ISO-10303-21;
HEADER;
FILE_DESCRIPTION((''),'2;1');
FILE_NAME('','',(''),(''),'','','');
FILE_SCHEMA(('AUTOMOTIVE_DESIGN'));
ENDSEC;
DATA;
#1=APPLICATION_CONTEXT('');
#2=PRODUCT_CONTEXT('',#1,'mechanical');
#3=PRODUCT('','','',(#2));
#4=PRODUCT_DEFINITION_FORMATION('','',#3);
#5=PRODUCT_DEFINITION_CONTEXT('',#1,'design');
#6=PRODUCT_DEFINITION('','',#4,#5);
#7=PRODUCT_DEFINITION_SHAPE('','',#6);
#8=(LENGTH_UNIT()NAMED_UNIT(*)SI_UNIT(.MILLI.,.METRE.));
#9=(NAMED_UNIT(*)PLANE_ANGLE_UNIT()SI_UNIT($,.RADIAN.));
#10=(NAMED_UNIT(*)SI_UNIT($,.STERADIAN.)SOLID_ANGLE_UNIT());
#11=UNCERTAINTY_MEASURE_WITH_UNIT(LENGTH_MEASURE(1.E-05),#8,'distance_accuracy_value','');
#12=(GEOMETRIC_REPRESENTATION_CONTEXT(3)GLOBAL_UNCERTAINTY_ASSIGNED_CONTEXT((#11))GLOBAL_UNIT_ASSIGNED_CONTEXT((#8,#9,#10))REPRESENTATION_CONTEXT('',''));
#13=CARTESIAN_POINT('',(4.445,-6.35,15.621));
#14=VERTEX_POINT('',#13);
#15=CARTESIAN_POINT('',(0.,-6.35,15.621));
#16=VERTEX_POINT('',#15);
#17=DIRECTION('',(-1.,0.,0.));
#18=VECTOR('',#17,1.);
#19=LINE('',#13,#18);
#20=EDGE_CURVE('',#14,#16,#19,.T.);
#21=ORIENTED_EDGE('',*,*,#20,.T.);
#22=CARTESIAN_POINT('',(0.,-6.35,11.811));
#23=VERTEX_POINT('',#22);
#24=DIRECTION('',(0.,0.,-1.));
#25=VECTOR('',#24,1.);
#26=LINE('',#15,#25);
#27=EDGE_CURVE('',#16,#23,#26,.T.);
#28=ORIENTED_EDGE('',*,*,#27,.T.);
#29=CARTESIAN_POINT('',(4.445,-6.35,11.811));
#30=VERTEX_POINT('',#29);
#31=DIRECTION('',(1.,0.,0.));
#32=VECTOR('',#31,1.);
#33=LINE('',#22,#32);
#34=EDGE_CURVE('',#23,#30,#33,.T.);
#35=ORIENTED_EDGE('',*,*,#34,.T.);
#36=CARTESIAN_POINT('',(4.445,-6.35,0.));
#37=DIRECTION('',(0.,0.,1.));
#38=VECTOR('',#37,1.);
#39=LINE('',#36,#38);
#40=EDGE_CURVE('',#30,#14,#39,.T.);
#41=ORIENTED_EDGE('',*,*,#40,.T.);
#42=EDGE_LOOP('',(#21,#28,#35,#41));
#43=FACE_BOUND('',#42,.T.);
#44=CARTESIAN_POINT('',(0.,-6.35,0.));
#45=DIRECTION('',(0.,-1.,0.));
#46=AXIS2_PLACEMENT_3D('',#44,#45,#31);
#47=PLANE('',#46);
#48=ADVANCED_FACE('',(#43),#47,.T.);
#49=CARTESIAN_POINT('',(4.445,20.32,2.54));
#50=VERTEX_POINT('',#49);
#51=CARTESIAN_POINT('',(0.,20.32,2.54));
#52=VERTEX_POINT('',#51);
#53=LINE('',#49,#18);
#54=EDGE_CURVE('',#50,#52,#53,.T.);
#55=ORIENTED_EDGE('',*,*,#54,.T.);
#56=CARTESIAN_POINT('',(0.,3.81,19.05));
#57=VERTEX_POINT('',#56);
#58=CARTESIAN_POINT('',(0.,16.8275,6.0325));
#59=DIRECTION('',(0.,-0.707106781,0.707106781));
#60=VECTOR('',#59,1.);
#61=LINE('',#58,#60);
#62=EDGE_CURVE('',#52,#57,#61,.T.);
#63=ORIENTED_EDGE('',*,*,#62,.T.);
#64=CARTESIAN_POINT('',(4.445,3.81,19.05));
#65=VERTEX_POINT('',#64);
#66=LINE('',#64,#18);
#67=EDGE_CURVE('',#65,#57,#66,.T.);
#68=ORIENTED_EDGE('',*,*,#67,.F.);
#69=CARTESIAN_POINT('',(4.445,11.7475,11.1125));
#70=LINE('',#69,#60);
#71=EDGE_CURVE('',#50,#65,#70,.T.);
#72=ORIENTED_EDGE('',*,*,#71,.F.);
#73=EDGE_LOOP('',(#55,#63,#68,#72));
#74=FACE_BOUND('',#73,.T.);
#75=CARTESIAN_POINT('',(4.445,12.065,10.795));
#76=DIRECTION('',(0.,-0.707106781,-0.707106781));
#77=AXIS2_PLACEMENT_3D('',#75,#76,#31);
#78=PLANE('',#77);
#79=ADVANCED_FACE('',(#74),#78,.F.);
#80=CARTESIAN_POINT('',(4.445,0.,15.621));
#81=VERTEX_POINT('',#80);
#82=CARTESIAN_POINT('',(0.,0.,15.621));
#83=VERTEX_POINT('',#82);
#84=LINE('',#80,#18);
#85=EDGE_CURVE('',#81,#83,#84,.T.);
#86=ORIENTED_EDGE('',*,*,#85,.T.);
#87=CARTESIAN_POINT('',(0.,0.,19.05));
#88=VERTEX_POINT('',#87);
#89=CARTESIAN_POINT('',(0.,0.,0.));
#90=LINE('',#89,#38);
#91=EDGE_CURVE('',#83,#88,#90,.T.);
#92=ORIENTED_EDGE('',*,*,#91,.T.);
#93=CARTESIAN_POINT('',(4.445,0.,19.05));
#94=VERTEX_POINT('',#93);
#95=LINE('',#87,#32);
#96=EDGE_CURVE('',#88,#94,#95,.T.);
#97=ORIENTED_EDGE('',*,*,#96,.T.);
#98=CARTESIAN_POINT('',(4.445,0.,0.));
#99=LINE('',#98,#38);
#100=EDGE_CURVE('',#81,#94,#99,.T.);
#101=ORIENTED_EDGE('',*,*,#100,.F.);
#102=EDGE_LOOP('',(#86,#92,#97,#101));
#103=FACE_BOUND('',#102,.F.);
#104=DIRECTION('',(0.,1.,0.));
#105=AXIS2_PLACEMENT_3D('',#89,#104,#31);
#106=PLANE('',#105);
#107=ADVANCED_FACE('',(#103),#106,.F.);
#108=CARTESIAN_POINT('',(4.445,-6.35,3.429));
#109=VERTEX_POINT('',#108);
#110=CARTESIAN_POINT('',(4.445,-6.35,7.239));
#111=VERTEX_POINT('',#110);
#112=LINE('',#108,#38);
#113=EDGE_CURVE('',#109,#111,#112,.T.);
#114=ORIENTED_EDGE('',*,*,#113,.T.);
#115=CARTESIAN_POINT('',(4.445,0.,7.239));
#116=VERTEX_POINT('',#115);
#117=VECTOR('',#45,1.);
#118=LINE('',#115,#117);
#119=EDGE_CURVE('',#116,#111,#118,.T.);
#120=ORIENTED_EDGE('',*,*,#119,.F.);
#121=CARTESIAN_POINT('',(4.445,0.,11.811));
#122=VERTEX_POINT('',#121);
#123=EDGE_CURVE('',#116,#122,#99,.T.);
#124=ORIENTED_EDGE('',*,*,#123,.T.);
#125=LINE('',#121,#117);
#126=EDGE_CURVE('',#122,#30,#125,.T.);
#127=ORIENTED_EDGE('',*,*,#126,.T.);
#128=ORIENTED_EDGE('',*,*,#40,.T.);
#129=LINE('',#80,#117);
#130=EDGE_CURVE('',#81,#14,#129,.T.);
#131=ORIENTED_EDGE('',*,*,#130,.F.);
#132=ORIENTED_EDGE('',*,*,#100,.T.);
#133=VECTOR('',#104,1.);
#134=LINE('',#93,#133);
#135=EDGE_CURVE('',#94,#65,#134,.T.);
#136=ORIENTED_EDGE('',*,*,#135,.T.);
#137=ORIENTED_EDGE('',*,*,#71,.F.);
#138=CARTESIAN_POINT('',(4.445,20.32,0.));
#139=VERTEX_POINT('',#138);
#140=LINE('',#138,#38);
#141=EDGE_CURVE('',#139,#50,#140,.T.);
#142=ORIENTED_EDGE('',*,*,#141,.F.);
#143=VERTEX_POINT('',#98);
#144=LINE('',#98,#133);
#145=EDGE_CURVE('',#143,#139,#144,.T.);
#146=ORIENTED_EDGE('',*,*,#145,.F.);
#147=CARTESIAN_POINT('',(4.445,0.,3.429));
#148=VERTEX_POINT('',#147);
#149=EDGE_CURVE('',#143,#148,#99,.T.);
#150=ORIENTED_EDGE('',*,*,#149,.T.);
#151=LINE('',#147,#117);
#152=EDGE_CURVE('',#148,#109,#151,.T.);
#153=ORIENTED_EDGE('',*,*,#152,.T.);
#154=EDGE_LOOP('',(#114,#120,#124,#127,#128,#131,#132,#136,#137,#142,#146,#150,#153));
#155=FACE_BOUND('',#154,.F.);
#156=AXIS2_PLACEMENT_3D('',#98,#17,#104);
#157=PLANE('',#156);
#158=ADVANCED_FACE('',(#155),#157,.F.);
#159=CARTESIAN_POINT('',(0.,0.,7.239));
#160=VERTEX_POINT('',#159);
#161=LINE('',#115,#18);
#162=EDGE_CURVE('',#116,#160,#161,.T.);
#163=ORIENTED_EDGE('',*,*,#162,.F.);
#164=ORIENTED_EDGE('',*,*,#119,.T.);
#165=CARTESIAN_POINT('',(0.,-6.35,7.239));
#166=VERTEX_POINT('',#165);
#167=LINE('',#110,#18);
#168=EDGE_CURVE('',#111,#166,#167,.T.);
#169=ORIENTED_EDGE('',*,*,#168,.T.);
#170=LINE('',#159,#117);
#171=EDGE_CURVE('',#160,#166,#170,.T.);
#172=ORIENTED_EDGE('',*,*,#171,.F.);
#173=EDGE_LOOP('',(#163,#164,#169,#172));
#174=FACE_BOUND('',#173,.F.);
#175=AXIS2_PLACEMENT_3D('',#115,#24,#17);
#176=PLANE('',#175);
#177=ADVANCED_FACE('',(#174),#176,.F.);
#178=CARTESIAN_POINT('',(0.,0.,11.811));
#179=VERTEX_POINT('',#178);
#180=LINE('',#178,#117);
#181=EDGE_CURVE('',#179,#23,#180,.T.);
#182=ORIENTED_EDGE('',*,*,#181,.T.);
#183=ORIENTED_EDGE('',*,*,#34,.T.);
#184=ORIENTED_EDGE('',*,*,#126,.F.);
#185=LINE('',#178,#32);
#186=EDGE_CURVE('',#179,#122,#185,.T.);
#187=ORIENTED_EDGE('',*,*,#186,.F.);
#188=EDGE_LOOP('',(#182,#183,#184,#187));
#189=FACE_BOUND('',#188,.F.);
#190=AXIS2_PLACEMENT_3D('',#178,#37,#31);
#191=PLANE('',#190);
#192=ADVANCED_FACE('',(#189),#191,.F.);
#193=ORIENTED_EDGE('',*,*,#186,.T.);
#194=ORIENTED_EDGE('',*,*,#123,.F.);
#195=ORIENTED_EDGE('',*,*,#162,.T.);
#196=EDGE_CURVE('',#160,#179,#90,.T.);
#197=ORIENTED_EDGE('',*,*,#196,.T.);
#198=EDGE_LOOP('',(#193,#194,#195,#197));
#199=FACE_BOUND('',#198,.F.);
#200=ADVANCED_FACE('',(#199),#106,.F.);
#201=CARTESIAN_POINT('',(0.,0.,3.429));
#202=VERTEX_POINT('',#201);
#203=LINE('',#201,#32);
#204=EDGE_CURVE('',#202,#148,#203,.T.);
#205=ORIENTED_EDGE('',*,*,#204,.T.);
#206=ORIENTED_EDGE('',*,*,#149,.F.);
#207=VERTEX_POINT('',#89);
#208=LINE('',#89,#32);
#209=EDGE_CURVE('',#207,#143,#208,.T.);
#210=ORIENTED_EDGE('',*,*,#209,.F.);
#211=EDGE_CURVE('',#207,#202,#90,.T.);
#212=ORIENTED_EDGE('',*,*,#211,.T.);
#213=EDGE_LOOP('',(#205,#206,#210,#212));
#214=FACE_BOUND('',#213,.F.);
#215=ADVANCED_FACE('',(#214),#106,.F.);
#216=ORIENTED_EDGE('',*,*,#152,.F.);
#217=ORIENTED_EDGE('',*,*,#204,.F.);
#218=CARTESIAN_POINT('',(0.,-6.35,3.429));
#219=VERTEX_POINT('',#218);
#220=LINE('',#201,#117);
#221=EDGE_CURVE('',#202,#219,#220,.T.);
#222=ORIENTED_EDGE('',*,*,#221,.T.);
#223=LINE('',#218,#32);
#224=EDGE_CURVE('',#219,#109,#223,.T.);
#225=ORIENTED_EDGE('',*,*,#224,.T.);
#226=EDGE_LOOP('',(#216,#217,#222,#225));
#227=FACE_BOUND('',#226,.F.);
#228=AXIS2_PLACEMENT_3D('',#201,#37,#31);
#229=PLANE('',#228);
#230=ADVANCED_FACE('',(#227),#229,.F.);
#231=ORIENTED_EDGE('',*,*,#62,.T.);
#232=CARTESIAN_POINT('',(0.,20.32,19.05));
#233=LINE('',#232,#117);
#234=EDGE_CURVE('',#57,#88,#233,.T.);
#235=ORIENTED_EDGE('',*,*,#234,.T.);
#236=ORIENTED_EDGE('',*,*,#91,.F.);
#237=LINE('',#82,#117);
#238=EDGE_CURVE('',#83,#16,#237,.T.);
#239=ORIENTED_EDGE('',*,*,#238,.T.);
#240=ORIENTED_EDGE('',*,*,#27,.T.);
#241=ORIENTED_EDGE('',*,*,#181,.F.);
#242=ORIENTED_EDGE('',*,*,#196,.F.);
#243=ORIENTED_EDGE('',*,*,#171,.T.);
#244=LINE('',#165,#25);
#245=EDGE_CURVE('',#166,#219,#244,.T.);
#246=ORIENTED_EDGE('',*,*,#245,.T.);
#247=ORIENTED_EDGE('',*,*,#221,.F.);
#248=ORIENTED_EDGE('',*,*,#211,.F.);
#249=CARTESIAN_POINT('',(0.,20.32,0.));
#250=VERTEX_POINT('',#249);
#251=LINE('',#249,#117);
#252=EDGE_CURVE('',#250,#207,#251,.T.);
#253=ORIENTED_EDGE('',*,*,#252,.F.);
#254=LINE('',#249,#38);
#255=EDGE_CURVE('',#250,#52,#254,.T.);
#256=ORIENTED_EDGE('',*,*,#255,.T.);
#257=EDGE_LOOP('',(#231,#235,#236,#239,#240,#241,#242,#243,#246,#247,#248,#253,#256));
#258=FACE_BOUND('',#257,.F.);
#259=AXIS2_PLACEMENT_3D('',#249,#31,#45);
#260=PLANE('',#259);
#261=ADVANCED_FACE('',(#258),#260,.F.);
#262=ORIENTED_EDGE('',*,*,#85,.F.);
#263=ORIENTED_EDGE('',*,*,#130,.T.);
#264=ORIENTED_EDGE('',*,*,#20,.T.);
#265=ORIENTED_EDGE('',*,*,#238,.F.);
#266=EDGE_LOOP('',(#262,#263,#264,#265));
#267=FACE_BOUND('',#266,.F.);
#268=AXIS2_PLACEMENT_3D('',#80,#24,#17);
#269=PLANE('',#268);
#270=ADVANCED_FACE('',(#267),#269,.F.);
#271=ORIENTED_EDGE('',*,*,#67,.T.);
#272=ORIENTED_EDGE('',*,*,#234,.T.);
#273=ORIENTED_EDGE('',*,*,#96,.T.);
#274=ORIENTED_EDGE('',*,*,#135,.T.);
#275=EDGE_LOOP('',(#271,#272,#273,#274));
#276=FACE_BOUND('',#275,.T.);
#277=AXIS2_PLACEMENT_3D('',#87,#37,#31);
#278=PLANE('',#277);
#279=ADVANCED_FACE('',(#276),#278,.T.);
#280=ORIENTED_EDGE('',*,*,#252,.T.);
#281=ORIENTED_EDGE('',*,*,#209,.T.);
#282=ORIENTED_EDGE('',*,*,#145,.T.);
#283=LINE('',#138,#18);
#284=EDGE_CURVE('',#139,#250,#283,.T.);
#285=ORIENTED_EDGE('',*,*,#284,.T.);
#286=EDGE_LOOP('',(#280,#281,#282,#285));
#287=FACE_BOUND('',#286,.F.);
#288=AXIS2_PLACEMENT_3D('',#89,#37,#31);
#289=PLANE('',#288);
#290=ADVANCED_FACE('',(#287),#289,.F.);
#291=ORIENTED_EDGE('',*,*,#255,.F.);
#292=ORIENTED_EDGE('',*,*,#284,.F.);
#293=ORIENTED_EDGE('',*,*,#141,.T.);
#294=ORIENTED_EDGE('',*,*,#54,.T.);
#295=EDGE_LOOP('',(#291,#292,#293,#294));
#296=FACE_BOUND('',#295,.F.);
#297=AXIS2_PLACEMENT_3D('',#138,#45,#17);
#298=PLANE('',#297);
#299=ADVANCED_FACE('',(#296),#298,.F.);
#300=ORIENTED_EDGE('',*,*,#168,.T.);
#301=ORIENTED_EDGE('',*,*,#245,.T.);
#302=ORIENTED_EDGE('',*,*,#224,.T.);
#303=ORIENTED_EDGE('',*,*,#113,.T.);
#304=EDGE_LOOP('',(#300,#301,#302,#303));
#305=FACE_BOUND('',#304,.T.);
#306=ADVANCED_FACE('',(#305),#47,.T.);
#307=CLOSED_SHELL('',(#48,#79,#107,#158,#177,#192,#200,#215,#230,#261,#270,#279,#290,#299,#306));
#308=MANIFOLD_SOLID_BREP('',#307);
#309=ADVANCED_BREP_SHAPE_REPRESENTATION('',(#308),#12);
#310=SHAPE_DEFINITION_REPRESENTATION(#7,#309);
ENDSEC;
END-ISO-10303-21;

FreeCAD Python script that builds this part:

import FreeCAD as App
import Part
import Sketcher
from FreeCAD import Vector
Q = App.Units.Quantity


def edges_at(feature, points):
    """Names of the edges that pass closest to the given points."""
    edges = feature.Shape.Edges
    near = lambda p: min(range(len(edges)), key=lambda i: edges[i].distToShape(Part.Vertex(*p))[0])
    return sorted({f"Edge{near(p) + 1}" for p in points})


def add_polygon(sketch, points):
    """Adds a closed chain of lines whose ends are joined by coincident constraints."""
    first, n = sketch.GeometryCount, len(points)
    for a, b in zip(points, points[1:] + points[:1]):
        sketch.addGeometry(Part.LineSegment(App.Vector(*a, 0), App.Vector(*b, 0)), False)
    for i in range(n):
        sketch.addConstraint(Sketcher.Constraint("Coincident", first + i, 2, first + (i + 1) % n, 1))

doc = App.newDocument("Part")
body = doc.addObject("PartDesign::Body", "Body")

# Sketch on XY plane
sketch1 = body.newObject("Sketcher::SketchObject", "Sketch")
sketch1.AttachmentSupport = (doc.getObject("XY_Plane"), [""])
sketch1.MapMode = "FlatFace"
add_polygon(sketch1, [(0, 20.3), (0, 0), (4.4, 0), (4.4, 20.3)])  # lines 0-3
sketch1.addConstraint(Sketcher.Constraint("Vertical", 0))
sketch1.addConstraint(Sketcher.Constraint("Horizontal", 1))
sketch1.addConstraint(Sketcher.Constraint("Vertical", 2))
sketch1.addConstraint(Sketcher.Constraint("Horizontal", 3))
sketch1.addConstraint(Sketcher.Constraint("Coincident", 0, 2, -1, 1))
sketch1.addConstraint(Sketcher.Constraint("DistanceY", 0, 2, 0, 1, Q("0.8 in")))
sketch1.addConstraint(Sketcher.Constraint("DistanceX", 1, 1, 1, 2, Q("0.175 in")))
pad1 = body.newObject("PartDesign::Pad", "Pad")
pad1.Profile = sketch1
pad1.Length = Q("0.75 in")
doc.recompute()

chamfer = body.newObject("PartDesign::Chamfer", "Chamfer")
chamfer.Base = (pad1, edges_at(pad1, [(2.223, 20.32, 19.05)]))
chamfer.Size = Q("0.65 in")

# Sketch on XZ plane
sketch2 = body.newObject("Sketcher::SketchObject", "Sketch001")
sketch2.AttachmentSupport = (doc.getObject("XZ_Plane"), [""])
sketch2.MapMode = "FlatFace"
add_polygon(sketch2, [(0, 7.2), (0, 3.4), (4.4, 3.4), (4.4, 7.2)])  # lines 0-3
add_polygon(sketch2, [(0, 11.8), (4.4, 11.8), (4.4, 15.6), (0, 15.6)])  # lines 4-7
sketch2.addConstraint(Sketcher.Constraint("Vertical", 0))
sketch2.addConstraint(Sketcher.Constraint("Horizontal", 1))
sketch2.addConstraint(Sketcher.Constraint("Vertical", 2))
sketch2.addConstraint(Sketcher.Constraint("Horizontal", 3))
sketch2.addConstraint(Sketcher.Constraint("Horizontal", 4))
sketch2.addConstraint(Sketcher.Constraint("Vertical", 5))
sketch2.addConstraint(Sketcher.Constraint("Horizontal", 6))
sketch2.addConstraint(Sketcher.Constraint("Vertical", 7))
sketch2.addConstraint(Sketcher.Constraint("PointOnObject", 0, 2, -2))
sketch2.addConstraint(Sketcher.Constraint("PointOnObject", 6, 2, -2))
sketch2.addConstraint(Sketcher.Constraint("Vertical", 2, 2, 4, 2))
sketch2.addConstraint(Sketcher.Constraint("Equal", 2, 5))
sketch2.addConstraint(Sketcher.Constraint("DistanceY", 0, 2, 0, 1, Q("0.15 in")))
sketch2.addConstraint(Sketcher.Constraint("DistanceX", 1, 1, 1, 2, Q("0.175 in")))
sketch2.addConstraint(Sketcher.Constraint("DistanceY", 1, 2, 4, 2, Q("0.33 in")))
sketch2.addConstraint(Sketcher.Constraint("DistanceY", -1, 1, 0, 2, Q("0.135 in")))
pad2 = body.newObject("PartDesign::Pad", "Pad001")
pad2.Profile = sketch2
pad2.Length = Q("0.25 in")

doc.recompute()
